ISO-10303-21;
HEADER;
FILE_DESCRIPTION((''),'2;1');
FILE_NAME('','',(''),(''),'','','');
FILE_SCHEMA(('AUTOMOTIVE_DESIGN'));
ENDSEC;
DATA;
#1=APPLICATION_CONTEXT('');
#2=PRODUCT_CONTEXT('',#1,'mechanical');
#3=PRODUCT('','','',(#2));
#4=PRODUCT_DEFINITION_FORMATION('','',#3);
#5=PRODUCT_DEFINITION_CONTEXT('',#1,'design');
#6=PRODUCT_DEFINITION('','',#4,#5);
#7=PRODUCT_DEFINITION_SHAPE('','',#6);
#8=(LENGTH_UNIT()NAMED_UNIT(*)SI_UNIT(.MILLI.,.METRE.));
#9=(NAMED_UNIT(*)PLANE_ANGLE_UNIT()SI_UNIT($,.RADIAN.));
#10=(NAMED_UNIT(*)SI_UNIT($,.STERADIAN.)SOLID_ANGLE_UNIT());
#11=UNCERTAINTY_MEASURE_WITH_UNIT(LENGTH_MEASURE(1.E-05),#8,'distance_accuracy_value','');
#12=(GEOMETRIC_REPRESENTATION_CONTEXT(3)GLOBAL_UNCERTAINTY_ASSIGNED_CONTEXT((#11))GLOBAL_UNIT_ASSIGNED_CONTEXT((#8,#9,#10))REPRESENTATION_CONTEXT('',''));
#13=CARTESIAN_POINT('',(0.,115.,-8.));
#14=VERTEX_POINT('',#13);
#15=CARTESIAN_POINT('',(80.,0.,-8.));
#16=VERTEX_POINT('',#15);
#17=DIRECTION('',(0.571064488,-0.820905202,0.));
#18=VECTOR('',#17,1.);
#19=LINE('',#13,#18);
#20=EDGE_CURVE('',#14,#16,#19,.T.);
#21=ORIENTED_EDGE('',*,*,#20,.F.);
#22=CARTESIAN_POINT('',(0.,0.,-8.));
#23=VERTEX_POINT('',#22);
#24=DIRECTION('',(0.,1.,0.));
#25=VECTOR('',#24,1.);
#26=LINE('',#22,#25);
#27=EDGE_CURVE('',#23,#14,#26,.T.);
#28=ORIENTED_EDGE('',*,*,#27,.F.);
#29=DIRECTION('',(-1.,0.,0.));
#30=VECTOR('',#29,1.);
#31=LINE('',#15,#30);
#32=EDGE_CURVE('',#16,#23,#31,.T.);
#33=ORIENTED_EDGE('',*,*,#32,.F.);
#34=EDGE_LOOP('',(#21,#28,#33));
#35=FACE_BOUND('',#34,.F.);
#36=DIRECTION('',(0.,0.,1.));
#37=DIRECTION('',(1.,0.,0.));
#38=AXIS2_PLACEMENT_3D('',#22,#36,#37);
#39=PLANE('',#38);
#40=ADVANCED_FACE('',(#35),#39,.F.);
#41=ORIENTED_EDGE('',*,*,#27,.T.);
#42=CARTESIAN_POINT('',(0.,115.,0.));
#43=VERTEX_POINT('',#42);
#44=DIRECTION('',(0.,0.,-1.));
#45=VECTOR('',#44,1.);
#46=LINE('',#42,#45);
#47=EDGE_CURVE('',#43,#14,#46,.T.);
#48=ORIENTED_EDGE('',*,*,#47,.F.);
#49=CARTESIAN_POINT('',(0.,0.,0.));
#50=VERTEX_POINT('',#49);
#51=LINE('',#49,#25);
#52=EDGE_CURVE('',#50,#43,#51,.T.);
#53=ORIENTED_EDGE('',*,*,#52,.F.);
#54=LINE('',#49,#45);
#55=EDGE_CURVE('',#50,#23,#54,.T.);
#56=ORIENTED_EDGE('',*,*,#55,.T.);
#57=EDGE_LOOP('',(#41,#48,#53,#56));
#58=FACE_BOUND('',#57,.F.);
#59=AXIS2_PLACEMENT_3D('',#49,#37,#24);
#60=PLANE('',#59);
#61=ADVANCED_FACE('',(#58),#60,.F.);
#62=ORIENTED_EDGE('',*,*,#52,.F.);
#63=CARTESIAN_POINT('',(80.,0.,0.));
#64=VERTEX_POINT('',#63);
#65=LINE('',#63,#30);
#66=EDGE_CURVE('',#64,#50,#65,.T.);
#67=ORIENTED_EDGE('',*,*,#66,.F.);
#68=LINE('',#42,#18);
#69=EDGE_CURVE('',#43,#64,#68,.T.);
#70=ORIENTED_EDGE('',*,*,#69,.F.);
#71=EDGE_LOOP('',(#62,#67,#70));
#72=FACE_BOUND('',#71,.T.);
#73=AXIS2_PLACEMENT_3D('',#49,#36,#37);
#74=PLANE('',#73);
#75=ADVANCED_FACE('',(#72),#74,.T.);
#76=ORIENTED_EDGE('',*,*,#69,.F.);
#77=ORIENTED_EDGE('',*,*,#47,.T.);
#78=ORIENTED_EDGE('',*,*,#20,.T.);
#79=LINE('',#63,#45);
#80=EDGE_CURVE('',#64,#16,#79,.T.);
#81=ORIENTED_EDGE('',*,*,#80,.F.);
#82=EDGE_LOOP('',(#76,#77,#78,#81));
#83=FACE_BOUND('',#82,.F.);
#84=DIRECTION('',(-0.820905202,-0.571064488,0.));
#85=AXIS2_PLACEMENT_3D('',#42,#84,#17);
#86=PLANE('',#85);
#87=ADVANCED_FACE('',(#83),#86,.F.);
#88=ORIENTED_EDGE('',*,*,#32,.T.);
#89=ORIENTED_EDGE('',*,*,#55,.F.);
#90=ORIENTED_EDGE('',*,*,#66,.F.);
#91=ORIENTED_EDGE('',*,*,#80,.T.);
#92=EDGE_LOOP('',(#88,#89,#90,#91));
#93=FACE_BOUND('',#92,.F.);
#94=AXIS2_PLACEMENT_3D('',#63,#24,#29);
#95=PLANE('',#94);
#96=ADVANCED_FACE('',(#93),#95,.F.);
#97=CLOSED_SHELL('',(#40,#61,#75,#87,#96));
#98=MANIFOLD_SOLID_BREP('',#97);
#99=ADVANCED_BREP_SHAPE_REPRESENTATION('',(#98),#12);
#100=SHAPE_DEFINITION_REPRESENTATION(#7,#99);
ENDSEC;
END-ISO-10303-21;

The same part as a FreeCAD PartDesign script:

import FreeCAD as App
import Part
import Sketcher
Q = App.Units.Quantity


def add_polygon(sketch, points):
    """Adds a closed chain of lines whose ends are joined by coincident constraints."""
    first, n = sketch.GeometryCount, len(points)
    for a, b in zip(points, points[1:] + points[:1]):
        sketch.addGeometry(Part.LineSegment(App.Vector(*a, 0), App.Vector(*b, 0)), False)
    for i in range(n):
        sketch.addConstraint(Sketcher.Constraint("Coincident", first + i, 2, first + (i + 1) % n, 1))

doc = App.newDocument("Part")
params = doc.addObject("Spreadsheet::Sheet", "Params")
for row, (alias, value) in enumerate([
    ("sketch1_width", "80 mm"),
    ("sketch1_height", "115 mm"),
    ("pad1_length", "8 mm"),
], start=1):
    params.set(f"A{row}", alias)
    params.set(f"B{row}", "=" + value)
    params.setAlias(f"B{row}", alias)

body = doc.addObject("PartDesign::Body", "Body")

sketch1 = body.newObject("Sketcher::SketchObject", "Sketch")
sketch1.AttachmentSupport = (doc.getObject("XY_Plane"), [""])
sketch1.MapMode = "FlatFace"
add_polygon(sketch1, [(0, 115), (0, 0), (80, 0)])
sketch1.addConstraint(Sketcher.Constraint("Vertical", 0))
sketch1.addConstraint(Sketcher.Constraint("Horizontal", 1))
sketch1.addConstraint(Sketcher.Constraint("Coincident", 0, 2, -1, 1))
sketch1.addConstraint(Sketcher.Constraint("DistanceX", 1, 1, 1, 2, Q("80 mm")))
sketch1.addConstraint(Sketcher.Constraint("DistanceY", 0, 2, 0, 1, Q("115 mm")))
sketch1.setExpression("Constraints[6]", "Params.sketch1_width")
sketch1.setExpression("Constraints[7]", "Params.sketch1_height")
pad1 = body.newObject("PartDesign::Pad", "Pad")
pad1.Profile = sketch1
pad1.setExpression("Length", "Params.pad1_length")
pad1.Reversed = True

doc.recompute()
